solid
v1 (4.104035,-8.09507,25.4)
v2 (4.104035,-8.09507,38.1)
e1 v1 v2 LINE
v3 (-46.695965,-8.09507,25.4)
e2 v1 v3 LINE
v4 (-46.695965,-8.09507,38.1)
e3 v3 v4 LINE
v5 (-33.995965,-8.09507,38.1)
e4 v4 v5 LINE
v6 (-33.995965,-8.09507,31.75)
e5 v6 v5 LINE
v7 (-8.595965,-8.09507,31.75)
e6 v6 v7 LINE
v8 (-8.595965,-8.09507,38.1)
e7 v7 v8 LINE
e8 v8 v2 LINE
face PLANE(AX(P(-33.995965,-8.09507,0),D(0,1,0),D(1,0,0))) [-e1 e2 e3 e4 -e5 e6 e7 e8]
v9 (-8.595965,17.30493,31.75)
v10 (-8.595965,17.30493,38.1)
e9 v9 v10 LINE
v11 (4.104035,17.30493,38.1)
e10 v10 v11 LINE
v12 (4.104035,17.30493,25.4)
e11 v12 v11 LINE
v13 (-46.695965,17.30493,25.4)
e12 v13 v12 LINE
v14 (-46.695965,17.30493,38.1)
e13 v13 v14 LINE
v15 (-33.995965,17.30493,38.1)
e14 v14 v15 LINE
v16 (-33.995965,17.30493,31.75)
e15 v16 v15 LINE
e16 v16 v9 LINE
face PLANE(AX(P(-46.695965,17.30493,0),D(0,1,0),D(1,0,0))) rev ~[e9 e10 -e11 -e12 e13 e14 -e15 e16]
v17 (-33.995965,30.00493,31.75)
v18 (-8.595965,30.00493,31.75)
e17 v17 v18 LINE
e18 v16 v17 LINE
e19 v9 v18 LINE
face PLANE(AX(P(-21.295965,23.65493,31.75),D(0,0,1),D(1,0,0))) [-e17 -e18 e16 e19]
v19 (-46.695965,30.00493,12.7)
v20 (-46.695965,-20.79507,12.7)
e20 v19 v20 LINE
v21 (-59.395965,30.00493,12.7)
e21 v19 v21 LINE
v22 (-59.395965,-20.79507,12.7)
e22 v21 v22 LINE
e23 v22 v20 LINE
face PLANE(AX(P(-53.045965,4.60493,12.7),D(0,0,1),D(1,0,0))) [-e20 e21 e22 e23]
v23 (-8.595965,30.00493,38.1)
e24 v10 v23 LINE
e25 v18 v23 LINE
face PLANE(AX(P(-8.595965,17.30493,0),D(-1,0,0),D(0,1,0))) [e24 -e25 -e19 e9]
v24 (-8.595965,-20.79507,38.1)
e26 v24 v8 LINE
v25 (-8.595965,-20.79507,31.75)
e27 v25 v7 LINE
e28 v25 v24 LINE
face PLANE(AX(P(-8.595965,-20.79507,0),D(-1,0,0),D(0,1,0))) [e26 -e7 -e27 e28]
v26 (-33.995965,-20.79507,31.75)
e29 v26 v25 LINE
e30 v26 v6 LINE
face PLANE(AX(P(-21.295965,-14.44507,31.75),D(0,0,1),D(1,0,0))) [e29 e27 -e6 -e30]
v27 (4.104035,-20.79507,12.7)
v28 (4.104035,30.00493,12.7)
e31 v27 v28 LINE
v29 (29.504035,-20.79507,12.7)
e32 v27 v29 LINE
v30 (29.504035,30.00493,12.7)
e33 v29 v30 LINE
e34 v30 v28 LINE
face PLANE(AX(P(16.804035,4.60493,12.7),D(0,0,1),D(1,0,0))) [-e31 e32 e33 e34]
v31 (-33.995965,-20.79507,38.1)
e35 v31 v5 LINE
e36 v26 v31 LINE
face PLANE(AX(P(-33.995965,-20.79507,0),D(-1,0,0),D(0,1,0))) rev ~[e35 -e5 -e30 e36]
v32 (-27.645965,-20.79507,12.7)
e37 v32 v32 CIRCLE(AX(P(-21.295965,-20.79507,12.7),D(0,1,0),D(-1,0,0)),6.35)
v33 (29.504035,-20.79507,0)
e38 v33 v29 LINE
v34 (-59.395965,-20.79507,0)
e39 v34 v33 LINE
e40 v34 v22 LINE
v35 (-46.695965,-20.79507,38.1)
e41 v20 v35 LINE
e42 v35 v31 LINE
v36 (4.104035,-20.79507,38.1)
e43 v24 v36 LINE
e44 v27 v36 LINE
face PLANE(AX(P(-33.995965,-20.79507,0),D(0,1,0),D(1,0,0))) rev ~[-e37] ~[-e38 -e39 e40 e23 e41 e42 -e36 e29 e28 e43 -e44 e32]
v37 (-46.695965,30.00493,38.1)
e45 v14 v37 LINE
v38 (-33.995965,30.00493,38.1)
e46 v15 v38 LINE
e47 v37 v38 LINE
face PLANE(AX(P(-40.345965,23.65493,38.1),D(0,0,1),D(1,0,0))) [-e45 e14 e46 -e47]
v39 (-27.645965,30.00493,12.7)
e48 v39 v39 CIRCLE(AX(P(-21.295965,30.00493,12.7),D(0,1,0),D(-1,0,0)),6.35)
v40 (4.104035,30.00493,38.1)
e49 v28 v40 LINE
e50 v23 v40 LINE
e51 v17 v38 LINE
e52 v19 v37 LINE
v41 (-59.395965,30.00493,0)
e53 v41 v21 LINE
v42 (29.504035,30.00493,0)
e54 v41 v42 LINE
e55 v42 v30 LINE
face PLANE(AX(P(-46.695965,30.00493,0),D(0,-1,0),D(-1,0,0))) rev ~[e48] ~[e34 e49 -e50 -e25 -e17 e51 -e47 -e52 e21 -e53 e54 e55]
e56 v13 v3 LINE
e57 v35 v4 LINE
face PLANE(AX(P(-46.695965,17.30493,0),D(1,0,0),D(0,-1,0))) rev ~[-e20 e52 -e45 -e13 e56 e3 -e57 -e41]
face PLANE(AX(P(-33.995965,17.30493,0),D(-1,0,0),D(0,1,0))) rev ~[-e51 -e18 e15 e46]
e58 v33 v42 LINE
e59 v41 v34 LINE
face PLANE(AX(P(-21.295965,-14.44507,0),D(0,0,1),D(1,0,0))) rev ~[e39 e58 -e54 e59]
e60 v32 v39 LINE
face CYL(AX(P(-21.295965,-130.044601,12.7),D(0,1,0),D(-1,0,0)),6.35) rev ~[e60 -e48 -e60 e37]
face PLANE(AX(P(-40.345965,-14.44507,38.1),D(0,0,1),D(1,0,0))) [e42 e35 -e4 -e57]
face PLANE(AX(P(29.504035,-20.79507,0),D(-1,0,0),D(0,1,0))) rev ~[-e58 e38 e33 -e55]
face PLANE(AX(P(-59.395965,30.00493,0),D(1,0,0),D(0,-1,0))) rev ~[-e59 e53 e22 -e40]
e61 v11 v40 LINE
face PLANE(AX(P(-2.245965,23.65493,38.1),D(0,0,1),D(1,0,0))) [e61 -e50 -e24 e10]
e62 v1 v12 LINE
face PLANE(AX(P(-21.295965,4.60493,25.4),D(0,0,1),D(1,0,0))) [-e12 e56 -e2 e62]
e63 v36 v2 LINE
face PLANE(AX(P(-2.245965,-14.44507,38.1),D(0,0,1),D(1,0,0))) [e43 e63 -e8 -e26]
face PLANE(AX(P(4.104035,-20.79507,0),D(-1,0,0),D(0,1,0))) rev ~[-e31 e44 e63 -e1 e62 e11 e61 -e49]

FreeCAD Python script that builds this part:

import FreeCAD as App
import Part
import Sketcher
Q = App.Units.Quantity

doc = App.newDocument("Part")
body = doc.addObject("PartDesign::Body", "Body")
body.AllowCompound = True

# Sketch on XY plane
sketch1 = body.newObject("Sketcher::SketchObject", "Sketch")
sketch1.AttachmentSupport = (doc.getObject("XY_Plane"), [""])
sketch1.MapMode = "FlatFace"
sketch1.addGeometry(Part.LineSegment(App.Vector(30, 30, 0), App.Vector(4, 30, 0)), False)
sketch1.addGeometry(Part.LineSegment(App.Vector(4, 30, 0), App.Vector(4, -21, 0)), False)
sketch1.addGeometry(Part.LineSegment(App.Vector(4, -21, 0), App.Vector(30, -21, 0)), False)
sketch1.addGeometry(Part.LineSegment(App.Vector(30, -21, 0), App.Vector(30, 30, 0)), False)
sketch1.addGeometry(Part.LineSegment(App.Vector(-47, 30, 0), App.Vector(-59, 30, 0)), False)
sketch1.addGeometry(Part.LineSegment(App.Vector(-59, 30, 0), App.Vector(-59, -21, 0)), False)
sketch1.addGeometry(Part.LineSegment(App.Vector(-59, -21, 0), App.Vector(-47, -21, 0)), False)
sketch1.addGeometry(Part.LineSegment(App.Vector(-47, -21, 0), App.Vector(-47, 30, 0)), False)
sketch1.addConstraint(Sketcher.Constraint("Coincident", 0, 2, 1, 1))
sketch1.addConstraint(Sketcher.Constraint("Coincident", 1, 2, 2, 1))
sketch1.addConstraint(Sketcher.Constraint("Coincident", 2, 2, 3, 1))
sketch1.addConstraint(Sketcher.Constraint("Coincident", 3, 2, 0, 1))
sketch1.addConstraint(Sketcher.Constraint("Coincident", 4, 2, 5, 1))
sketch1.addConstraint(Sketcher.Constraint("Coincident", 5, 2, 6, 1))
sketch1.addConstraint(Sketcher.Constraint("Coincident", 6, 2, 7, 1))
sketch1.addConstraint(Sketcher.Constraint("Coincident", 7, 2, 4, 1))
sketch1.addConstraint(Sketcher.Constraint("Horizontal", 0))
sketch1.addConstraint(Sketcher.Constraint("Vertical", 1))
sketch1.addConstraint(Sketcher.Constraint("Horizontal", 2))
sketch1.addConstraint(Sketcher.Constraint("Vertical", 3))
sketch1.addConstraint(Sketcher.Constraint("Horizontal", 4))
sketch1.addConstraint(Sketcher.Constraint("Vertical", 5))
sketch1.addConstraint(Sketcher.Constraint("Horizontal", 6))
sketch1.addConstraint(Sketcher.Constraint("Vertical", 7))
sketch1.addConstraint(Sketcher.Constraint("Horizontal", 3, 2, 4, 2))
sketch1.addConstraint(Sketcher.Constraint("Horizontal", 2, 2, 5, 2))
sketch1.addConstraint(Sketcher.Constraint("DistanceX", 0, 2, 0, 1, Q("1 in")))
sketch1.addConstraint(Sketcher.Constraint("DistanceY", 1, 2, 1, 1, Q("2 in")))
sketch1.addConstraint(Sketcher.Constraint("DistanceX", 4, 2, 4, 1, Q("0.5 in")))
sketch1.addConstraint(Sketcher.Constraint("DistanceX", 6, 2, 1, 2, Q("2 in")))
sketch1.addConstraint(Sketcher.Constraint("DistanceY", -1, 1, 0, 2, 30.00493))
sketch1.addConstraint(Sketcher.Constraint("DistanceX", -1, 1, 0, 2, 4.104035))
pad1 = body.newObject("PartDesign::Pad", "Pad")
pad1.Profile = sketch1
pad1.Length = Q("0.5 in")
body2 = doc.addObject("PartDesign::Body", "Body001")

# Sketch on XY plane
sketch2 = body2.newObject("Sketcher::SketchObject", "Sketch001")
sketch2.AttachmentSupport = (doc.getObject("XY_Plane001"), [""])
sketch2.MapMode = "FlatFace"
sketch2.addGeometry(Part.LineSegment(App.Vector(-47, 17, 0), App.Vector(-47, -8, 0)), False)
sketch2.addGeometry(Part.LineSegment(App.Vector(-47, -8, 0), App.Vector(4, -8, 0)), False)
sketch2.addGeometry(Part.LineSegment(App.Vector(4, -8, 0), App.Vector(4, 17, 0)), False)
sketch2.addGeometry(Part.LineSegment(App.Vector(4, 17, 0), App.Vector(-47, 17, 0)), False)
sketch2.addConstraint(Sketcher.Constraint("Coincident", 0, 2, 1, 1))
sketch2.addConstraint(Sketcher.Constraint("Coincident", 1, 2, 2, 1))
sketch2.addConstraint(Sketcher.Constraint("Coincident", 2, 2, 3, 1))
sketch2.addConstraint(Sketcher.Constraint("Coincident", 3, 2, 0, 1))
sketch2.addConstraint(Sketcher.Constraint("Vertical", 0))
sketch2.addConstraint(Sketcher.Constraint("Horizontal", 1))
sketch2.addConstraint(Sketcher.Constraint("Vertical", 2))
sketch2.addConstraint(Sketcher.Constraint("Horizontal", 3))
sketch2.addConstraint(Sketcher.Constraint("DistanceX", 1, 1, 1, 2, Q("2 in")))
sketch2.addConstraint(Sketcher.Constraint("DistanceY", 0, 2, 0, 1, Q("1 in")))
sketch2.addConstraint(Sketcher.Constraint("DistanceY", 0, 2, -1, 1, 8.09507))
sketch2.addConstraint(Sketcher.Constraint("DistanceX", 0, 2, -1, 1, 46.695965))
pad2 = body2.newObject("PartDesign::Pad", "Pad001")
pad2.Profile = sketch2
pad2.Length = Q("1 in")
body3 = doc.addObject("PartDesign::Body", "Body002")
body3.AllowCompound = True

# Sketch on XY plane
sketch3 = body3.newObject("Sketcher::SketchObject", "Sketch002")
sketch3.AttachmentSupport = (doc.getObject("XY_Plane002"), [""])
sketch3.MapMode = "FlatFace"
sketch3.addGeometry(Part.LineSegment(App.Vector(-47, -8, 0), App.Vector(-47, -21, 0)), False)
sketch3.addGeometry(Part.LineSegment(App.Vector(-47, -21, 0), App.Vector(-34, -21, 0)), False)
sketch3.addGeometry(Part.LineSegment(App.Vector(-34, -21, 0), App.Vector(-34, -8, 0)), False)
sketch3.addGeometry(Part.LineSegment(App.Vector(-34, -8, 0), App.Vector(-47, -8, 0)), False)
sketch3.addGeometry(Part.LineSegment(App.Vector(-47, 30, 0), App.Vector(-47, 17, 0)), False)
sketch3.addGeometry(Part.LineSegment(App.Vector(-47, 17, 0), App.Vector(-34, 17, 0)), False)
sketch3.addGeometry(Part.LineSegment(App.Vector(-34, 17, 0), App.Vector(-34, 30, 0)), False)
sketch3.addGeometry(Part.LineSegment(App.Vector(-34, 30, 0), App.Vector(-47, 30, 0)), False)
sketch3.addGeometry(Part.LineSegment(App.Vector(-9, 30, 0), App.Vector(-9, 17, 0)), False)
sketch3.addGeometry(Part.LineSegment(App.Vector(-9, 17, 0), App.Vector(4, 17, 0)), False)
sketch3.addGeometry(Part.LineSegment(App.Vector(4, 17, 0), App.Vector(4, 30, 0)), False)
sketch3.addGeometry(Part.LineSegment(App.Vector(4, 30, 0), App.Vector(-9, 30, 0)), False)
sketch3.addGeometry(Part.LineSegment(App.Vector(-9, -8, 0), App.Vector(-9, -21, 0)), False)
sketch3.addGeometry(Part.LineSegment(App.Vector(-9, -21, 0), App.Vector(4, -21, 0)), False)
sketch3.addGeometry(Part.LineSegment(App.Vector(4, -21, 0), App.Vector(4, -8, 0)), False)
sketch3.addGeometry(Part.LineSegment(App.Vector(4, -8, 0), App.Vector(-9, -8, 0)), False)
sketch3.addConstraint(Sketcher.Constraint("Coincident", 0, 2, 1, 1))
sketch3.addConstraint(Sketcher.Constraint("Coincident", 1, 2, 2, 1))
sketch3.addConstraint(Sketcher.Constraint("Coincident", 2, 2, 3, 1))
sketch3.addConstraint(Sketcher.Constraint("Coincident", 3, 2, 0, 1))
sketch3.addConstraint(Sketcher.Constraint("Coincident", 4, 2, 5, 1))
sketch3.addConstraint(Sketcher.Constraint("Coincident", 5, 2, 6, 1))
sketch3.addConstraint(Sketcher.Constraint("Coincident", 6, 2, 7, 1))
sketch3.addConstraint(Sketcher.Constraint("Coincident", 7, 2, 4, 1))
sketch3.addConstraint(Sketcher.Constraint("Coincident", 8, 2, 9, 1))
sketch3.addConstraint(Sketcher.Constraint("Coincident", 9, 2, 10, 1))
sketch3.addConstraint(Sketcher.Constraint("Coincident", 10, 2, 11, 1))
sketch3.addConstraint(Sketcher.Constraint("Coincident", 11, 2, 8, 1))
sketch3.addConstraint(Sketcher.Constraint("Coincident", 12, 2, 13, 1))
sketch3.addConstraint(Sketcher.Constraint("Coincident", 13, 2, 14, 1))
sketch3.addConstraint(Sketcher.Constraint("Coincident", 14, 2, 15, 1))
sketch3.addConstraint(Sketcher.Constraint("Coincident", 15, 2, 12, 1))
sketch3.addConstraint(Sketcher.Constraint("Vertical", 0))
sketch3.addConstraint(Sketcher.Constraint("Horizontal", 1))
sketch3.addConstraint(Sketcher.Constraint("Vertical", 2))
sketch3.addConstraint(Sketcher.Constraint("Horizontal", 3))
sketch3.addConstraint(Sketcher.Constraint("Vertical", 4))
sketch3.addConstraint(Sketcher.Constraint("Horizontal", 5))
sketch3.addConstraint(Sketcher.Constraint("Vertical", 6))
sketch3.addConstraint(Sketcher.Constraint("Horizontal", 7))
sketch3.addConstraint(Sketcher.Constraint("Vertical", 8))
sketch3.addConstraint(Sketcher.Constraint("Horizontal", 9))
sketch3.addConstraint(Sketcher.Constraint("Vertical", 10))
sketch3.addConstraint(Sketcher.Constraint("Horizontal", 11))
sketch3.addConstraint(Sketcher.Constraint("Vertical", 12))
sketch3.addConstraint(Sketcher.Constraint("Horizontal", 13))
sketch3.addConstraint(Sketcher.Constraint("Vertical", 14))
sketch3.addConstraint(Sketcher.Constraint("Horizontal", 15))
sketch3.addConstraint(Sketcher.Constraint("Horizontal", 5, 2, 8, 2))
sketch3.addConstraint(Sketcher.Constraint("Horizontal", 7, 2, 10, 2))
sketch3.addConstraint(Sketcher.Constraint("Horizontal", 1, 2, 12, 2))
sketch3.addConstraint(Sketcher.Constraint("Horizontal", 3, 2, 14, 2))
sketch3.addConstraint(Sketcher.Constraint("Vertical", 3, 2, 4, 2))
sketch3.addConstraint(Sketcher.Constraint("Vertical", 2, 2, 5, 2))
sketch3.addConstraint(Sketcher.Constraint("Vertical", 11, 2, 12, 2))
sketch3.addConstraint(Sketcher.Constraint("Vertical", 10, 2, 13, 2))
sketch3.addConstraint(Sketcher.Constraint("Equal", 7, 9))
sketch3.addConstraint(Sketcher.Constraint("Equal", 15, 0))
sketch3.addConstraint(Sketcher.Constraint("Equal", 2, 4))
sketch3.addConstraint(Sketcher.Constraint("DistanceX", 1, 1, 1, 2, Q("0.5 in")))
sketch3.addConstraint(Sketcher.Constraint("DistanceY", 3, 2, 4, 2, Q("1 in")))
sketch3.addConstraint(Sketcher.Constraint("DistanceX", 5, 2, 8, 2, Q("1 in")))
sketch3.addConstraint(Sketcher.Constraint("DistanceY", 0, 2, -1, 1, 20.79507))
sketch3.addConstraint(Sketcher.Constraint("DistanceX", 0, 2, -1, 1, 46.695965))
pad3 = body3.newObject("PartDesign::Pad", "Pad002")
pad3.Profile = sketch3
pad3.Length = Q("1.5 in")
body4 = doc.addObject("PartDesign::Body", "Body003")
body4.AllowCompound = True

# Sketch on XY plane
sketch4 = body4.newObject("Sketcher::SketchObject", "Sketch003")
sketch4.AttachmentSupport = (doc.getObject("XY_Plane003"), [""])
sketch4.MapMode = "FlatFace"
sketch4.addGeometry(Part.LineSegment(App.Vector(-34, 30, 0), App.Vector(-34, 17, 0)), False)
sketch4.addGeometry(Part.LineSegment(App.Vector(-34, 17, 0), App.Vector(-9, 17, 0)), False)
sketch4.addGeometry(Part.LineSegment(App.Vector(-9, 17, 0), App.Vector(-9, 30, 0)), False)
sketch4.addGeometry(Part.LineSegment(App.Vector(-9, 30, 0), App.Vector(-34, 30, 0)), False)
sketch4.addGeometry(Part.LineSegment(App.Vector(-34, -8, 0), App.Vector(-34, -21, 0)), False)
sketch4.addGeometry(Part.LineSegment(App.Vector(-34, -21, 0), App.Vector(-9, -21, 0)), False)
sketch4.addGeometry(Part.LineSegment(App.Vector(-9, -21, 0), App.Vector(-9, -8, 0)), False)
sketch4.addGeometry(Part.LineSegment(App.Vector(-9, -8, 0), App.Vector(-34, -8, 0)), False)
sketch4.addConstraint(Sketcher.Constraint("Coincident", 0, 2, 1, 1))
sketch4.addConstraint(Sketcher.Constraint("Coincident", 1, 2, 2, 1))
sketch4.addConstraint(Sketcher.Constraint("Coincident", 2, 2, 3, 1))
sketch4.addConstraint(Sketcher.Constraint("Coincident", 3, 2, 0, 1))
sketch4.addConstraint(Sketcher.Constraint("Coincident", 4, 2, 5, 1))
sketch4.addConstraint(Sketcher.Constraint("Coincident", 5, 2, 6, 1))
sketch4.addConstraint(Sketcher.Constraint("Coincident", 6, 2, 7, 1))
sketch4.addConstraint(Sketcher.Constraint("Coincident", 7, 2, 4, 1))
sketch4.addConstraint(Sketcher.Constraint("Vertical", 0))
sketch4.addConstraint(Sketcher.Constraint("Horizontal", 1))
sketch4.addConstraint(Sketcher.Constraint("Vertical", 2))
sketch4.addConstraint(Sketcher.Constraint("Horizontal", 3))
sketch4.addConstraint(Sketcher.Constraint("Vertical", 4))
sketch4.addConstraint(Sketcher.Constraint("Horizontal", 5))
sketch4.addConstraint(Sketcher.Constraint("Vertical", 6))
sketch4.addConstraint(Sketcher.Constraint("Horizontal", 7))
sketch4.addConstraint(Sketcher.Constraint("Vertical", 3, 2, 4, 2))
sketch4.addConstraint(Sketcher.Constraint("Vertical", 2, 2, 5, 2))
sketch4.addConstraint(Sketcher.Constraint("Equal", 2, 4))
sketch4.addConstraint(Sketcher.Constraint("DistanceX", 1, 1, 1, 2, Q("1 in")))
sketch4.addConstraint(Sketcher.Constraint("DistanceY", 0, 2, 0, 1, Q("0.5 in")))
sketch4.addConstraint(Sketcher.Constraint("DistanceY", 4, 2, 3, 2, Q("2 in")))
sketch4.addConstraint(Sketcher.Constraint("DistanceY", -1, 1, 0, 2, 17.30493))
sketch4.addConstraint(Sketcher.Constraint("DistanceX", 0, 2, -1, 1, 33.995965))
pad4 = body4.newObject("PartDesign::Pad", "Pad003")
pad4.Profile = sketch4
pad4.Length = Q("1.25 in")
doc.recompute()

boolean = body.newObject("PartDesign::Boolean", "Boolean")
boolean.Type = "Fuse"
boolean.addObjects([body2])
doc.recompute()

boolean2 = body.newObject("PartDesign::Boolean", "Boolean001")
boolean2.Type = "Fuse"
boolean2.addObjects([body3])
doc.recompute()

boolean3 = body.newObject("PartDesign::Boolean", "Boolean002")
boolean3.Type = "Fuse"
boolean3.addObjects([body4])

# Sketch on XZ plane
sketch5 = body.newObject("Sketcher::SketchObject", "Sketch004")
sketch5.AttachmentSupport = (doc.getObject("XZ_Plane"), [""])
sketch5.MapMode = "FlatFace"
sketch5.AttachmentOffset = App.Placement(App.Vector(0, 0, 20.79507), App.Rotation())
sketch5.addGeometry(Part.Circle(App.Vector(-21, 13, 0), App.Vector(0, 0, 1), 6), False)
sketch5.addConstraint(Sketcher.Constraint("Diameter", 0, Q("0.5 in")))
sketch5.addConstraint(Sketcher.Constraint("DistanceY", -1, 1, 0, 3, Q("0.5 in")))
sketch5.addConstraint(Sketcher.Constraint("DistanceX", 0, 3, -1, 1, 21.295965))
doc.recompute()
hole = body.newObject("PartDesign::Hole", "Hole")
hole.Profile = sketch5
hole.ThreadType = "None"
hole.Diameter = Q("0.5 in")
hole.DepthType = "ThroughAll"

doc.recompute()
